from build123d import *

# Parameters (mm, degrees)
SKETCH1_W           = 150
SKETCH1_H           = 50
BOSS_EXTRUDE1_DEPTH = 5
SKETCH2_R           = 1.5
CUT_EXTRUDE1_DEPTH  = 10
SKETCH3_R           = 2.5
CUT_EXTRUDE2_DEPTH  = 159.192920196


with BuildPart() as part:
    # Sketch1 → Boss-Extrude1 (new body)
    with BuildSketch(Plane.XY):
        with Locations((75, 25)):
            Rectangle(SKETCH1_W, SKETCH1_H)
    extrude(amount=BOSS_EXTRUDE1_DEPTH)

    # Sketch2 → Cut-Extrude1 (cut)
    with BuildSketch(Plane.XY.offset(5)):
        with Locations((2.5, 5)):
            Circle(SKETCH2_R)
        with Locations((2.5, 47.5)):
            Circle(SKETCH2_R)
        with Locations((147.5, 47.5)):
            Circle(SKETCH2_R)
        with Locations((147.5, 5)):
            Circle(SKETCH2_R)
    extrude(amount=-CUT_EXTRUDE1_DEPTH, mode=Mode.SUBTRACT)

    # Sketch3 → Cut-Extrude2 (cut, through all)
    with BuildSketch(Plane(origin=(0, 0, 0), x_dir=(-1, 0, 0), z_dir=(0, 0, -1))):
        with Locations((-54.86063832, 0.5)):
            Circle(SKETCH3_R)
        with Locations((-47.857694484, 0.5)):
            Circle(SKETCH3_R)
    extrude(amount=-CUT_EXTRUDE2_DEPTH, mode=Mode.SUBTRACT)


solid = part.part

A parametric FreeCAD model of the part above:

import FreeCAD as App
import Part
import Sketcher
Q = App.Units.Quantity

doc = App.newDocument("Part")
body = doc.addObject("PartDesign::Body", "Body")

# Sketch on XY plane
sketch1 = body.newObject("Sketcher::SketchObject", "Sketch")
sketch1.AttachmentSupport = (doc.getObject("XY_Plane"), [""])
sketch1.MapMode = "FlatFace"
sketch1.addGeometry([
    Part.LineSegment(App.Vector(0, 50, 0), App.Vector(0, 0, 0)),
    Part.LineSegment(App.Vector(0, 0, 0), App.Vector(150, 0, 0)),
    Part.LineSegment(App.Vector(150, 0, 0), App.Vector(150, 50, 0)),
    Part.LineSegment(App.Vector(150, 50, 0), App.Vector(0, 50, 0)),
], False)
sketch1.addConstraint([
    Sketcher.Constraint("Coincident", 0, 2, 1, 1),
    Sketcher.Constraint("Coincident", 1, 2, 2, 1),
    Sketcher.Constraint("Coincident", 2, 2, 3, 1),
    Sketcher.Constraint("Coincident", 3, 2, 0, 1),
    Sketcher.Constraint("Vertical", 0),
    Sketcher.Constraint("Horizontal", 1),
    Sketcher.Constraint("Vertical", 2),
    Sketcher.Constraint("Horizontal", 3),
    Sketcher.Constraint("Coincident", 0, 2, -1, 1),
    Sketcher.Constraint("DistanceX", 1, 1, 1, 2, Q("150 mm")),
    Sketcher.Constraint("DistanceY", 0, 2, 0, 1, Q("50 mm")),
])
pad1 = body.newObject("PartDesign::Pad", "Pad")
pad1.Profile = sketch1
pad1.Length = 5

# Sketch on XY plane
sketch2 = body.newObject("Sketcher::SketchObject", "Sketch001")
sketch2.AttachmentSupport = (doc.getObject("XY_Plane"), [""])
sketch2.MapMode = "FlatFace"
sketch2.AttachmentOffset = App.Placement(App.Vector(0, 0, 5), App.Rotation())
sketch2.addGeometry([
    Part.Circle(App.Vector(2.5, 5, 0), App.Vector(0, 0, 1), 1.5),
    Part.Circle(App.Vector(2.5, 47.5, 0), App.Vector(0, 0, 1), 1.5),
    Part.Circle(App.Vector(147.5, 47.5, 0), App.Vector(0, 0, 1), 1.5),
    Part.Circle(App.Vector(147.5, 5, 0), App.Vector(0, 0, 1), 1.5),
], False)
sketch2.addConstraint([
    Sketcher.Constraint("Equal", 0, 1),
    Sketcher.Constraint("Equal", 1, 2),
    Sketcher.Constraint("Equal", 2, 3),
    Sketcher.Constraint("Horizontal", 1, 3, 2, 3),
    Sketcher.Constraint("Horizontal", 0, 3, 3, 3),
    Sketcher.Constraint("Vertical", 0, 3, 1, 3),
    Sketcher.Constraint("Vertical", 2, 3, 3, 3),
    Sketcher.Constraint("Diameter", 0, Q("3 mm")),
    Sketcher.Constraint("DistanceY", -1, 1, 0, 3, Q("5 mm")),
    Sketcher.Constraint("DistanceX", 1, 3, 2, 3, Q("145 mm")),
    Sketcher.Constraint("DistanceX", -1, 1, 0, 3, Q("2.5 mm")),
    Sketcher.Constraint("DistanceY", -1, 1, 1, 3, Q("47.5 mm")),
])
pocket1 = body.newObject("PartDesign::Pocket", "Pocket")
pocket1.Profile = sketch2
pocket1.Length = 10

# Sketch on XY plane
sketch3 = body.newObject("Sketcher::SketchObject", "Sketch002")
sketch3.AttachmentSupport = (doc.getObject("XY_Plane"), [""])
sketch3.MapMode = "FlatFace"
sketch3.addGeometry([
    Part.Circle(App.Vector(54.860638, 0.5, 0), App.Vector(0, 0, 1), 2.5),
    Part.Circle(App.Vector(47.857694, 0.5, 0), App.Vector(0, 0, 1), 2.5),
], False)
sketch3.addConstraint([
    Sketcher.Constraint("Equal", 0, 1),
    Sketcher.Constraint("Horizontal", 0, 3, 1, 3),
    Sketcher.Constraint("Diameter", 0, Q("5 mm")),
    Sketcher.Constraint("DistanceY", -1, 1, 0, 3, Q("0.5 mm")),
    Sketcher.Constraint("DistanceX", -1, 1, 0, 3, Q("54.860638 mm")),
    Sketcher.Constraint("DistanceX", -1, 1, 1, 3, Q("47.857694 mm")),
])
pocket2 = body.newObject("PartDesign::Pocket", "Pocket001")
pocket2.Profile = sketch3
pocket2.Type = "ThroughAll"
pocket2.Reversed = True

doc.recompute()
